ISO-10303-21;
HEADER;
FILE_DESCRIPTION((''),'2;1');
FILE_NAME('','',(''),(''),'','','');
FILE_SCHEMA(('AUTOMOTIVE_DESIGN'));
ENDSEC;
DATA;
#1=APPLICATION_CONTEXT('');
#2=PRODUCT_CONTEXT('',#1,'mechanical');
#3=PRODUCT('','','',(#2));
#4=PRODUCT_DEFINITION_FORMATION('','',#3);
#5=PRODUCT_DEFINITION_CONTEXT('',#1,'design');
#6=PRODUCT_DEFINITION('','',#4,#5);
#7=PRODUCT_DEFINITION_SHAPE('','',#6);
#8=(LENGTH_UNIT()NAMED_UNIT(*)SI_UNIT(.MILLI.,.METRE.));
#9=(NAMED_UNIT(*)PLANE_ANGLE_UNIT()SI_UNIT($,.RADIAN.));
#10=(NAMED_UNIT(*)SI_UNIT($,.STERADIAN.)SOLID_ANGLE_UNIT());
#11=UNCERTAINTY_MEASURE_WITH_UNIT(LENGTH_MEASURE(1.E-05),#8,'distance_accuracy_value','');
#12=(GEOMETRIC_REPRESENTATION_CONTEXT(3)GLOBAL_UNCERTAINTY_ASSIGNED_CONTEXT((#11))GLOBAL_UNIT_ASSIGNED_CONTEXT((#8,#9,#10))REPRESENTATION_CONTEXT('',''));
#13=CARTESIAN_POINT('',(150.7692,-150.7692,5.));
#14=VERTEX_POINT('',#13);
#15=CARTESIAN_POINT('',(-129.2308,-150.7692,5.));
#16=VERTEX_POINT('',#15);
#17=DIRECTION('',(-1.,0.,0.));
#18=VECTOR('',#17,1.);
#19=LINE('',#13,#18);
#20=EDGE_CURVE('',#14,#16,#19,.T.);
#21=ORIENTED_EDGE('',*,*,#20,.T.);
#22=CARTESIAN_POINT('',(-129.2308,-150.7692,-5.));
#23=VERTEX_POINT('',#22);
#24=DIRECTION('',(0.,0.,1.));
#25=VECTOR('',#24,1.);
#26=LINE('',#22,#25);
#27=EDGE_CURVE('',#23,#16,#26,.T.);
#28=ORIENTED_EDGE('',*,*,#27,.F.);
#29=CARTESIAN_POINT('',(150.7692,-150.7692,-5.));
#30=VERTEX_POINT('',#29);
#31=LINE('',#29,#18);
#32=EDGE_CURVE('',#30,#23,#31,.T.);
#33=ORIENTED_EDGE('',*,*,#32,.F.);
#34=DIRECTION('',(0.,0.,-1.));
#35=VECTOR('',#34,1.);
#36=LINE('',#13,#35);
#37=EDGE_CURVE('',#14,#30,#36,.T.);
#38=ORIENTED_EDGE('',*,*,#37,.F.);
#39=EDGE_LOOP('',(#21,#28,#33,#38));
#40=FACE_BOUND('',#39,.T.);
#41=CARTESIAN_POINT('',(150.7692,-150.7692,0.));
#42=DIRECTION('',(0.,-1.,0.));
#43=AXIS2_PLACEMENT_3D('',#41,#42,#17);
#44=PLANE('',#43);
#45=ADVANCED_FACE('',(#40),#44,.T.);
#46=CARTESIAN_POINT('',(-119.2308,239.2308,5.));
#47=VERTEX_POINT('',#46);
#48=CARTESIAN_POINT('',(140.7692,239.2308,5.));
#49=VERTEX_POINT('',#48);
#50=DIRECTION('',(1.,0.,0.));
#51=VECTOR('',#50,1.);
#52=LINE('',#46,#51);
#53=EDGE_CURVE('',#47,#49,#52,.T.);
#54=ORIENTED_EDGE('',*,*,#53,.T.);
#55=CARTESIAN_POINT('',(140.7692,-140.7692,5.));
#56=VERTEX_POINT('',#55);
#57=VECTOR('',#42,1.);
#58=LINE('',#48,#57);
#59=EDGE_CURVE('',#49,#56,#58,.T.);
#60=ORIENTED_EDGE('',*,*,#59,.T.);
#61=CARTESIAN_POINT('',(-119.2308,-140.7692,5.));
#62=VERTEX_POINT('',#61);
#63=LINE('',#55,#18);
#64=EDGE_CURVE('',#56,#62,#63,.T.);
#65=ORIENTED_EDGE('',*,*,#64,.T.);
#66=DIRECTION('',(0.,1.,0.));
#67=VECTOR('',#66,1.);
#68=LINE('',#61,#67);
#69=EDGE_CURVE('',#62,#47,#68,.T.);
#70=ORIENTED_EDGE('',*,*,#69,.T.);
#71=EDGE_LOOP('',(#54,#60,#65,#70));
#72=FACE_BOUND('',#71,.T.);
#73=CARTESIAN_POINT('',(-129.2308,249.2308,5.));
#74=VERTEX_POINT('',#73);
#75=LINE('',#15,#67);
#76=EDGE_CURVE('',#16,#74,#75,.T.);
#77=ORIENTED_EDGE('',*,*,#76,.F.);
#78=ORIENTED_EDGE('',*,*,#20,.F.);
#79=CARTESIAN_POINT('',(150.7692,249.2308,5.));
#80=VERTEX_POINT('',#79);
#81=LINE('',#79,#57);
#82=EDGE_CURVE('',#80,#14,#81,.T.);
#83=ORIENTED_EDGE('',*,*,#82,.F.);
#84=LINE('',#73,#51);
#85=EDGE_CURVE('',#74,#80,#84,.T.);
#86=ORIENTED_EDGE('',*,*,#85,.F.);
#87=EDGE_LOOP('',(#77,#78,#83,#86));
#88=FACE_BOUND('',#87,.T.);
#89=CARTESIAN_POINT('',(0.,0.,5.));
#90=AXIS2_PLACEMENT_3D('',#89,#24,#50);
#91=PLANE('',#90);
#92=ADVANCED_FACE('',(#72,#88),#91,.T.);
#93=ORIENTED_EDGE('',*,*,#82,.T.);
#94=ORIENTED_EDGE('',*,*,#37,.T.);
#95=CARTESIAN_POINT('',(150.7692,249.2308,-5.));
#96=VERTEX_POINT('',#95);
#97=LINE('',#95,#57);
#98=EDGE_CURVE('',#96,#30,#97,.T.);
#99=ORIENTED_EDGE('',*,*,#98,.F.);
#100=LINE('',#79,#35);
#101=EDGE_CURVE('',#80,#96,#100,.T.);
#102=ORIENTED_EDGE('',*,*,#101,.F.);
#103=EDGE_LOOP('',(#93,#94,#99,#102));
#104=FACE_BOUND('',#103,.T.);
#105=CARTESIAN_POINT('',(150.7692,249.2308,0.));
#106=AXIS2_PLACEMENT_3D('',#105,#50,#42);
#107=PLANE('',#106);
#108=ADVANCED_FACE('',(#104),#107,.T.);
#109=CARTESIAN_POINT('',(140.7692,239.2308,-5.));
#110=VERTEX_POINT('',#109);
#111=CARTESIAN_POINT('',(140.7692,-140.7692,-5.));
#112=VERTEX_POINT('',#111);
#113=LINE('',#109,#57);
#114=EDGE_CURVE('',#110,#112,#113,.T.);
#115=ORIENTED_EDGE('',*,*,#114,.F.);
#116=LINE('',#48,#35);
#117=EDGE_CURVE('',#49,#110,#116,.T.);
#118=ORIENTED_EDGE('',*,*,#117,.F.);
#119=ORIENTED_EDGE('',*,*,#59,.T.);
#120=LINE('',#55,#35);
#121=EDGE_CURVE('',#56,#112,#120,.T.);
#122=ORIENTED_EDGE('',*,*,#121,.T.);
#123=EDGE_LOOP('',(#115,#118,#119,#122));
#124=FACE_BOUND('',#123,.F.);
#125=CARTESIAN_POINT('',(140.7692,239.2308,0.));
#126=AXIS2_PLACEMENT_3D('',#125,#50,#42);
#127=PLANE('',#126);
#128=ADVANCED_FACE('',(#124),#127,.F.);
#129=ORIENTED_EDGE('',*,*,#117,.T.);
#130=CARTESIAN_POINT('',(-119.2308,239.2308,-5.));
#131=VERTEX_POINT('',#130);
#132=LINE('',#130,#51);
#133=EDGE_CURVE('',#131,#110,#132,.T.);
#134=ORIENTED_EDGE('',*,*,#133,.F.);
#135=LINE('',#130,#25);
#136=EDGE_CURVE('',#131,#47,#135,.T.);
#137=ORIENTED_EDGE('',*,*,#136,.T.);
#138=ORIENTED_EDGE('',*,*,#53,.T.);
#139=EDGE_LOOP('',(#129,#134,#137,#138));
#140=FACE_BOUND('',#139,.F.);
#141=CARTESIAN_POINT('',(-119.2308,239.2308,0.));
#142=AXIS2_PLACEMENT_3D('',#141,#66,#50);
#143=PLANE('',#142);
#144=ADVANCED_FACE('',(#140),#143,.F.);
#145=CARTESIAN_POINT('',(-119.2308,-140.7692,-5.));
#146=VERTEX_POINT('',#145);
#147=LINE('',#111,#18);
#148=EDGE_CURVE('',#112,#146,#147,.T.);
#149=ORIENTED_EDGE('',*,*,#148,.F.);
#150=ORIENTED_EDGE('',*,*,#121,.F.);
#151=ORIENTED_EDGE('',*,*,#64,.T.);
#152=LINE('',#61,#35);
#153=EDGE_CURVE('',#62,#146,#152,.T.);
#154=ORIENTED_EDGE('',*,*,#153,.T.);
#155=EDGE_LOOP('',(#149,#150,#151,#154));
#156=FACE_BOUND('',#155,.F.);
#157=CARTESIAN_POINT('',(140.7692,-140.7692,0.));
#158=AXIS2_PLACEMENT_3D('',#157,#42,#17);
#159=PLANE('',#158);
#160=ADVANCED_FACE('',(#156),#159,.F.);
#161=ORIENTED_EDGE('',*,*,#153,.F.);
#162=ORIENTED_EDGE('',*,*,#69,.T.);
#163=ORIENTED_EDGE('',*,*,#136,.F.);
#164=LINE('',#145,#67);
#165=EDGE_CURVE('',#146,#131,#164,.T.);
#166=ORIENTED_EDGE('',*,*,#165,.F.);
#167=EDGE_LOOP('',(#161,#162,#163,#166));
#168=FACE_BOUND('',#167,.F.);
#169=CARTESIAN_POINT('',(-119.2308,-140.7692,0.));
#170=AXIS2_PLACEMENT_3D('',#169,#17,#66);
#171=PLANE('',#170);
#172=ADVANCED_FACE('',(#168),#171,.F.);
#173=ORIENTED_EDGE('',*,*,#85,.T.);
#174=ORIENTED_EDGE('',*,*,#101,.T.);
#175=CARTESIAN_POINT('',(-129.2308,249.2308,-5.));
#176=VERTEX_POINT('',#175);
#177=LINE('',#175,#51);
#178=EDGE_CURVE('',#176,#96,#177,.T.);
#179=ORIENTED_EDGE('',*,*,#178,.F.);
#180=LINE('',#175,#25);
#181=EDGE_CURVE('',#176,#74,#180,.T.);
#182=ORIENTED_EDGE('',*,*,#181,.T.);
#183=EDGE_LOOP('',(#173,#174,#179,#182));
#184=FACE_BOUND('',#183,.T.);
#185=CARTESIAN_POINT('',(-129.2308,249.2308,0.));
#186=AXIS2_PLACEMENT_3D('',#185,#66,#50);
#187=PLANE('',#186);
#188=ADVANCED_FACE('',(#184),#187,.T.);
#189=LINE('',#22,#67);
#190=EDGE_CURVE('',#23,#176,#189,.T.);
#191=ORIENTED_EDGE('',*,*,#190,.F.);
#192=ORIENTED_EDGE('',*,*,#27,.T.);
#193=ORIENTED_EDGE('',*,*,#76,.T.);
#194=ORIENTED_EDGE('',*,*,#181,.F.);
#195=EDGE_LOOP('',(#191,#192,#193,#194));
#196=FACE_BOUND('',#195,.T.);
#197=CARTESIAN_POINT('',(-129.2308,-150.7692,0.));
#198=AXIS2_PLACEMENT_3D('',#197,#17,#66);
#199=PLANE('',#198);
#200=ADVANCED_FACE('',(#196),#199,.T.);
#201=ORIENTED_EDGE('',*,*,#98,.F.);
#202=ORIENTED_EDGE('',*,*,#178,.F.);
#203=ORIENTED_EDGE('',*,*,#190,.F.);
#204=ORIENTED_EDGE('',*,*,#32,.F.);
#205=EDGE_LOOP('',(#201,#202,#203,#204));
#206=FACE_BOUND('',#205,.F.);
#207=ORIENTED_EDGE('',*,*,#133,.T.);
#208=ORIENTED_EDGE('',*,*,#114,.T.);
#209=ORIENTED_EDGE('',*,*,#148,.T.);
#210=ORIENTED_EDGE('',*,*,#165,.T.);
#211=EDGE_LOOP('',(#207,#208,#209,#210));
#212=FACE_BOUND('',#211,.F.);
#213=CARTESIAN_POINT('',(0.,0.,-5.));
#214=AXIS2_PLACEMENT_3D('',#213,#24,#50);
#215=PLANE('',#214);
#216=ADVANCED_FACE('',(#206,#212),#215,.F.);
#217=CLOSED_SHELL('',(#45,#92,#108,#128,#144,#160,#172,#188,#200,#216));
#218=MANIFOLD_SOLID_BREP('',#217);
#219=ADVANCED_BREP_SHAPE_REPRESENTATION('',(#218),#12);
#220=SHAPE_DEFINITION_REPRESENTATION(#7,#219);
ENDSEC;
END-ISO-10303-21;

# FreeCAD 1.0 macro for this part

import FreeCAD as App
import Part
import Sketcher

V = App.Vector

doc = App.newDocument("Part")
body = doc.addObject("PartDesign::Body", "Body")

# Sketch on XY plane
sketch1 = doc.addObject("Sketcher::SketchObject", "Sketch")
body.addObject(sketch1)
sketch1.AttachmentSupport = (doc.XY_Plane, [""])
sketch1.MapMode = "FlatFace"
sketch1.addGeometry([
    Part.LineSegment(V(151, 249, 0), V(-129, 249, 0)),  # 0
    Part.LineSegment(V(-129, 249, 0), V(-129, -151, 0)),  # 1
    Part.LineSegment(V(-129, -151, 0), V(151, -151, 0)),  # 2
    Part.LineSegment(V(151, -151, 0), V(151, 249, 0)),  # 3
    Part.LineSegment(V(-119, -141, 0), V(-119, 239, 0)),  # 4
    Part.LineSegment(V(-119, 239, 0), V(141, 239, 0)),  # 5
    Part.LineSegment(V(141, 239, 0), V(141, -141, 0)),  # 6
    Part.LineSegment(V(141, -141, 0), V(-119, -141, 0)),  # 7
], False)
sketch1.addConstraint([
    Sketcher.Constraint("Coincident", 0, 2, 1, 1),
    Sketcher.Constraint("Coincident", 1, 2, 2, 1),
    Sketcher.Constraint("Coincident", 2, 2, 3, 1),
    Sketcher.Constraint("Coincident", 3, 2, 0, 1),
    Sketcher.Constraint("Coincident", 4, 2, 5, 1),
    Sketcher.Constraint("Coincident", 5, 2, 6, 1),
    Sketcher.Constraint("Coincident", 6, 2, 7, 1),
    Sketcher.Constraint("Coincident", 7, 2, 4, 1),
    Sketcher.Constraint("Horizontal", 0),
    Sketcher.Constraint("Vertical", 1),
    Sketcher.Constraint("Horizontal", 2),
    Sketcher.Constraint("Vertical", 3),
    Sketcher.Constraint("Vertical", 4),
    Sketcher.Constraint("Horizontal", 5),
    Sketcher.Constraint("Vertical", 6),
    Sketcher.Constraint("Horizontal", 7),
    Sketcher.Constraint("DistanceX", 0, 2, 0, 1, 280.0),
    Sketcher.Constraint("DistanceY", 1, 2, 1, 1, 400.0),
    Sketcher.Constraint("DistanceX", 0, 2, 4, 2, 10.0),
    Sketcher.Constraint("DistanceY", 4, 2, 0, 2, 10.0),
    Sketcher.Constraint("DistanceX", 5, 2, 3, 2, 10.0),
    Sketcher.Constraint("DistanceY", 2, 2, 6, 2, 10.0),
    Sketcher.Constraint("DistanceY", -1, 1, 0, 2, 249.2308),
    Sketcher.Constraint("DistanceX", -1, 1, 2, 2, 150.7692),
])
pad1 = doc.addObject("PartDesign::Pad", "Pad")
body.addObject(pad1)
pad1.Profile = sketch1
pad1.Length = 10
pad1.Midplane = True

doc.recompute()
